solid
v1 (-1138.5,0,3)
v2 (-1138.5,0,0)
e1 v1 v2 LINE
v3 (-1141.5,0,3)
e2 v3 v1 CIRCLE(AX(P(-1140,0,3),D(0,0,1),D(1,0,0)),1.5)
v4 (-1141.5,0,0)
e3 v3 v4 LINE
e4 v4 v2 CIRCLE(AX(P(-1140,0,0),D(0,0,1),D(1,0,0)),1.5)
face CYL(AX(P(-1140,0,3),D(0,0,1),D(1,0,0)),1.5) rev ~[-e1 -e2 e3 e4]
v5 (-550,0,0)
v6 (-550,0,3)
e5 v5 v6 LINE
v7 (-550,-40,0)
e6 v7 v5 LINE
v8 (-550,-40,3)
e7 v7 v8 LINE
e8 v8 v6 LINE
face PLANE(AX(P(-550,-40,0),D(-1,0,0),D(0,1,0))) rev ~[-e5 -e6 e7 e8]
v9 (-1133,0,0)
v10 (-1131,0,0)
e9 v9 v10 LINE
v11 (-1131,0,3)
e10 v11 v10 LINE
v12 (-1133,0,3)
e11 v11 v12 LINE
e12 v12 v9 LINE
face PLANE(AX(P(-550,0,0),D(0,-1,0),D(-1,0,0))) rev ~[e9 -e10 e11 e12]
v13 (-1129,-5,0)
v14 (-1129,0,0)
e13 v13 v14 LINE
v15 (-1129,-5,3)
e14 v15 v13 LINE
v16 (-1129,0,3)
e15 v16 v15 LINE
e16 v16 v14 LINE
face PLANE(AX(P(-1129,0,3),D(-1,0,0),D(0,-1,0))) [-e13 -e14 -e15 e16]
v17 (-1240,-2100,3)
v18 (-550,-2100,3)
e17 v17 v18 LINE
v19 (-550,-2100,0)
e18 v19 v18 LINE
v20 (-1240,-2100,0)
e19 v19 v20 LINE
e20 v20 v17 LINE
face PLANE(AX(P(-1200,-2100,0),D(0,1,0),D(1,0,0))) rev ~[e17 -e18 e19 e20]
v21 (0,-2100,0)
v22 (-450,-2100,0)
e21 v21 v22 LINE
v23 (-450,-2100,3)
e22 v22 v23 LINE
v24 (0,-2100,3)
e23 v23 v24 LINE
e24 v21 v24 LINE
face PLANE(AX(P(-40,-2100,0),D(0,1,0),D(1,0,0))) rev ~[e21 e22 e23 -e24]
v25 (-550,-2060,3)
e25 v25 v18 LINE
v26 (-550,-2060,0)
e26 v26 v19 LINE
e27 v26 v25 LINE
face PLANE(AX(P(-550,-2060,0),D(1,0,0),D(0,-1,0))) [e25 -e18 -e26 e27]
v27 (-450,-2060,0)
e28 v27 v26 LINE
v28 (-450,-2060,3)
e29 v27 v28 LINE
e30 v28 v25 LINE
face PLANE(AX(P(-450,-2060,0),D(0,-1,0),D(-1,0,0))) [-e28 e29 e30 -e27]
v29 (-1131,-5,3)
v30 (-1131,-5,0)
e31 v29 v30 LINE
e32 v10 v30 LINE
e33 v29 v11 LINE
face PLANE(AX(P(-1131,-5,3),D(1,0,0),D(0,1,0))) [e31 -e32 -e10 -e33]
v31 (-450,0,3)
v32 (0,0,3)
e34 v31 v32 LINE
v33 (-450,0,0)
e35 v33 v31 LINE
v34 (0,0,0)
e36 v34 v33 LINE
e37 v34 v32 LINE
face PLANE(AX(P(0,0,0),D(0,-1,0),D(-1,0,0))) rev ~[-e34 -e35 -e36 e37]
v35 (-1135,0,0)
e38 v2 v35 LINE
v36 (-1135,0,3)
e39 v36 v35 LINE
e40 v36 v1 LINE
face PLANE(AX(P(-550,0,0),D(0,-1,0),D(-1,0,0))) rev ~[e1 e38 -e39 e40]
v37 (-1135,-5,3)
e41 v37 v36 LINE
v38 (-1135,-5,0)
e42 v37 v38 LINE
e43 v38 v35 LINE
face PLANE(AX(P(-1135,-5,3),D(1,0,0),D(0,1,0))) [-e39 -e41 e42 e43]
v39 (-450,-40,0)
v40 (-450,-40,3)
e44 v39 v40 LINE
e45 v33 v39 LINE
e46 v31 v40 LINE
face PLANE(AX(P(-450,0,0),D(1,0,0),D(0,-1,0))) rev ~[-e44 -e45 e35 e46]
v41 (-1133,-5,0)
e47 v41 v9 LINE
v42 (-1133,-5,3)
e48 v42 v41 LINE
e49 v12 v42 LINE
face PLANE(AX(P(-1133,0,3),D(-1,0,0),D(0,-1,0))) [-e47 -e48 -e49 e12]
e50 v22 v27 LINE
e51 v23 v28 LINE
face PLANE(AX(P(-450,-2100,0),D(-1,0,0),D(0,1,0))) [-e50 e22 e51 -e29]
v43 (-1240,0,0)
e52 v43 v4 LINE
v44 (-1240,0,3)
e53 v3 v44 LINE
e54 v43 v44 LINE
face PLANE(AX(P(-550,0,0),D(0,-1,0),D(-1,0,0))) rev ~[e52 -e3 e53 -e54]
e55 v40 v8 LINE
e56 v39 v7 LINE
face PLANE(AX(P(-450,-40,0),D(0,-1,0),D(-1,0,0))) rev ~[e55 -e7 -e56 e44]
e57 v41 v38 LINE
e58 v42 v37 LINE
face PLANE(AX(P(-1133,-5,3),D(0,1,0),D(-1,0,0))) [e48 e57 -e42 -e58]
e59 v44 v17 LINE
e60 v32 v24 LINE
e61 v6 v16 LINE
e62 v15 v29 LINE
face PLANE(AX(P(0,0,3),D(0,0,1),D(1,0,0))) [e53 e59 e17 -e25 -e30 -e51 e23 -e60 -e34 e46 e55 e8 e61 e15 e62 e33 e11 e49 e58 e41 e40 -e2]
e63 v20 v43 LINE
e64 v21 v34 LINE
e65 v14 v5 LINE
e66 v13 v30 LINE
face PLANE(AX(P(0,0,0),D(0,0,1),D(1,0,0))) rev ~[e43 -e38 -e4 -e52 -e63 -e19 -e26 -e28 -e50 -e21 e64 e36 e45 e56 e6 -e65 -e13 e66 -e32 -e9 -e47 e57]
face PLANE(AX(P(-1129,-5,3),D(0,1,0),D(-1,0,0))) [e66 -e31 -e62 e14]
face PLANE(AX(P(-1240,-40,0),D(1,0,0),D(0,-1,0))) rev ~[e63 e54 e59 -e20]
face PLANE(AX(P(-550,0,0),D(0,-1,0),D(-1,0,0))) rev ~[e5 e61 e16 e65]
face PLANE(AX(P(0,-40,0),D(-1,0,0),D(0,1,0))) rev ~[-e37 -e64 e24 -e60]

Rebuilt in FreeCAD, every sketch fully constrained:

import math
import FreeCAD as App
import Part
import Sketcher

doc = App.newDocument("Part")
body = doc.addObject("PartDesign::Body", "Body")

sketch1 = doc.addObject("Sketcher::SketchObject", "Sketch")
body.addObject(sketch1)
sketch1.AttachmentSupport = (doc.XY_Plane, [""])
sketch1.MapMode = "FlatFace"
sketch1.addGeometry(Part.LineSegment(App.Vector(0, 0, 0), App.Vector(-450, 0, 0)), False)
sketch1.addGeometry(Part.LineSegment(App.Vector(-450, 0, 0), App.Vector(-450, -40, 0)), False)
sketch1.addGeometry(Part.LineSegment(App.Vector(-450, -40, 0), App.Vector(-550, -40, 0)), False)
sketch1.addGeometry(Part.LineSegment(App.Vector(-550, -40, 0), App.Vector(-550, 0, 0)), False)
sketch1.addGeometry(Part.LineSegment(App.Vector(-550, 0, 0), App.Vector(-1240, 0, 0)), False)
sketch1.addGeometry(Part.LineSegment(App.Vector(-1240, 0, 0), App.Vector(-1240, -2100, 0)), False)
sketch1.addGeometry(Part.LineSegment(App.Vector(-1240, -2100, 0), App.Vector(-550, -2100, 0)), False)
sketch1.addGeometry(Part.LineSegment(App.Vector(-550, -2100, 0), App.Vector(-550, -2060, 0)), False)
sketch1.addGeometry(Part.LineSegment(App.Vector(-550, -2060, 0), App.Vector(-450, -2060, 0)), False)
sketch1.addGeometry(Part.LineSegment(App.Vector(-450, -2060, 0), App.Vector(-450, -2100, 0)), False)
sketch1.addGeometry(Part.LineSegment(App.Vector(-450, -2100, 0), App.Vector(0, -2100, 0)), False)
sketch1.addGeometry(Part.LineSegment(App.Vector(0, -2100, 0), App.Vector(0, 0, 0)), False)
sketch1.addConstraint(Sketcher.Constraint("Coincident", 0, 2, 1, 1))
sketch1.addConstraint(Sketcher.Constraint("Coincident", 1, 2, 2, 1))
sketch1.addConstraint(Sketcher.Constraint("Coincident", 2, 2, 3, 1))
sketch1.addConstraint(Sketcher.Constraint("Coincident", 3, 2, 4, 1))
sketch1.addConstraint(Sketcher.Constraint("Coincident", 4, 2, 5, 1))
sketch1.addConstraint(Sketcher.Constraint("Coincident", 5, 2, 6, 1))
sketch1.addConstraint(Sketcher.Constraint("Coincident", 6, 2, 7, 1))
sketch1.addConstraint(Sketcher.Constraint("Coincident", 7, 2, 8, 1))
sketch1.addConstraint(Sketcher.Constraint("Coincident", 8, 2, 9, 1))
sketch1.addConstraint(Sketcher.Constraint("Coincident", 9, 2, 10, 1))
sketch1.addConstraint(Sketcher.Constraint("Coincident", 10, 2, 11, 1))
sketch1.addConstraint(Sketcher.Constraint("Coincident", 11, 2, 0, 1))
sketch1.addConstraint(Sketcher.Constraint("Horizontal", 0))
sketch1.addConstraint(Sketcher.Constraint("Vertical", 1))
sketch1.addConstraint(Sketcher.Constraint("Horizontal", 2))
sketch1.addConstraint(Sketcher.Constraint("Vertical", 3))
sketch1.addConstraint(Sketcher.Constraint("Horizontal", 4))
sketch1.addConstraint(Sketcher.Constraint("Vertical", 5))
sketch1.addConstraint(Sketcher.Constraint("Horizontal", 6))
sketch1.addConstraint(Sketcher.Constraint("Vertical", 7))
sketch1.addConstraint(Sketcher.Constraint("Horizontal", 8))
sketch1.addConstraint(Sketcher.Constraint("Vertical", 9))
sketch1.addConstraint(Sketcher.Constraint("Horizontal", 10))
sketch1.addConstraint(Sketcher.Constraint("Vertical", 11))
sketch1.addConstraint(Sketcher.Constraint("Coincident", 11, 2, -1, 1))
sketch1.addConstraint(Sketcher.Constraint("PointOnObject", 3, 2, -1))
sketch1.addConstraint(Sketcher.Constraint("Horizontal", 6, 2, 9, 2))
sketch1.addConstraint(Sketcher.Constraint("Vertical", 3, 2, 6, 2))
sketch1.addConstraint(Sketcher.Constraint("Vertical", 1, 2, 8, 2))
sketch1.addConstraint(Sketcher.Constraint("Equal", 3, 7))
sketch1.addConstraint(Sketcher.Constraint("DistanceX", 2, 2, 2, 1, 100.0))
sketch1.addConstraint(Sketcher.Constraint("DistanceY", 1, 2, 1, 1, 40.0))
sketch1.addConstraint(Sketcher.Constraint("DistanceY", 5, 2, 5, 1, 2100.0))
sketch1.addConstraint(Sketcher.Constraint("DistanceX", 4, 2, -1, 1, 1240.0))
sketch1.addConstraint(Sketcher.Constraint("DistanceX", 0, 2, 0, 1, 450.0))
pad1 = doc.addObject("PartDesign::Pad", "Pad")
body.addObject(pad1)
pad1.Profile = sketch1
pad1.Length = 3

sketch2 = doc.addObject("Sketcher::SketchObject", "Sketch001")
body.addObject(sketch2)
sketch2.AttachmentSupport = (doc.XY_Plane, [""])
sketch2.MapMode = "FlatFace"
sketch2.AttachmentOffset = App.Placement(App.Vector(0, 0, 3), App.Rotation())
sketch2.addGeometry(Part.LineSegment(App.Vector(-1138.5, 0, 0), App.Vector(-1141.5, 0, 0)), False)
sketch2.addGeometry(Part.ArcOfCircle(Part.Circle(App.Vector(-1140, 0, 0), App.Vector(0, 0, 1), 1.5), math.radians(180), math.radians(360)), False)
sketch2.addGeometry(Part.LineSegment(App.Vector(-1133, 0, 0), App.Vector(-1135, 0, 0)), False)
sketch2.addGeometry(Part.LineSegment(App.Vector(-1135, 0, 0), App.Vector(-1135, -5, 0)), False)
sketch2.addGeometry(Part.LineSegment(App.Vector(-1135, -5, 0), App.Vector(-1133, -5, 0)), False)
sketch2.addGeometry(Part.LineSegment(App.Vector(-1133, -5, 0), App.Vector(-1133, 0, 0)), False)
sketch2.addGeometry(Part.LineSegment(App.Vector(-1129, 0, 0), App.Vector(-1131, 0, 0)), False)
sketch2.addGeometry(Part.LineSegment(App.Vector(-1131, 0, 0), App.Vector(-1131, -5, 0)), False)
sketch2.addGeometry(Part.LineSegment(App.Vector(-1131, -5, 0), App.Vector(-1129, -5, 0)), False)
sketch2.addGeometry(Part.LineSegment(App.Vector(-1129, -5, 0), App.Vector(-1129, 0, 0)), False)
sketch2.addConstraint(Sketcher.Constraint("Coincident", 0, 1, 1, 2))
sketch2.addConstraint(Sketcher.Constraint("Coincident", 1, 1, 0, 2))
sketch2.addConstraint(Sketcher.Constraint("Coincident", 2, 2, 3, 1))
sketch2.addConstraint(Sketcher.Constraint("Coincident", 3, 2, 4, 1))
sketch2.addConstraint(Sketcher.Constraint("Coincident", 4, 2, 5, 1))
sketch2.addConstraint(Sketcher.Constraint("Coincident", 5, 2, 2, 1))
sketch2.addConstraint(Sketcher.Constraint("Coincident", 6, 2, 7, 1))
sketch2.addConstraint(Sketcher.Constraint("Coincident", 7, 2, 8, 1))
sketch2.addConstraint(Sketcher.Constraint("Coincident", 8, 2, 9, 1))
sketch2.addConstraint(Sketcher.Constraint("Coincident", 9, 2, 6, 1))
sketch2.addConstraint(Sketcher.Constraint("Horizontal", 0))
sketch2.addConstraint(Sketcher.Constraint("Horizontal", 2))
sketch2.addConstraint(Sketcher.Constraint("Vertical", 3))
sketch2.addConstraint(Sketcher.Constraint("Horizontal", 4))
sketch2.addConstraint(Sketcher.Constraint("Vertical", 5))
sketch2.addConstraint(Sketcher.Constraint("Horizontal", 6))
sketch2.addConstraint(Sketcher.Constraint("Vertical", 7))
sketch2.addConstraint(Sketcher.Constraint("Horizontal", 8))
sketch2.addConstraint(Sketcher.Constraint("Vertical", 9))
sketch2.addConstraint(Sketcher.Constraint("PointOnObject", 1, 3, -1))
sketch2.addConstraint(Sketcher.Constraint("PointOnObject", 0, 1, -1))
sketch2.addConstraint(Sketcher.Constraint("PointOnObject", 2, 2, -1))
sketch2.addConstraint(Sketcher.Constraint("PointOnObject", 6, 2, -1))
sketch2.addConstraint(Sketcher.Constraint("Horizontal", 4, 2, 7, 2))
sketch2.addConstraint(Sketcher.Constraint("Equal", 4, 6))
sketch2.addConstraint(Sketcher.Constraint("Radius", 1, 1.5))
sketch2.addConstraint(Sketcher.Constraint("DistanceX", 2, 2, 2, 1, 2.0))
sketch2.addConstraint(Sketcher.Constraint("DistanceY", 3, 2, 3, 1, 5.0))
sketch2.addConstraint(Sketcher.Constraint("DistanceX", 1, 3, 2, 2, 5.0))
sketch2.addConstraint(Sketcher.Constraint("DistanceX", 5, 2, 6, 2, 2.0))
sketch2.addConstraint(Sketcher.Constraint("DistanceX", 1, 3, -1, 1, 1140.0))
pocket1 = doc.addObject("PartDesign::Pocket", "Pocket")
body.addObject(pocket1)
pocket1.Profile = sketch2
pocket1.Length = 3

doc.recompute()
